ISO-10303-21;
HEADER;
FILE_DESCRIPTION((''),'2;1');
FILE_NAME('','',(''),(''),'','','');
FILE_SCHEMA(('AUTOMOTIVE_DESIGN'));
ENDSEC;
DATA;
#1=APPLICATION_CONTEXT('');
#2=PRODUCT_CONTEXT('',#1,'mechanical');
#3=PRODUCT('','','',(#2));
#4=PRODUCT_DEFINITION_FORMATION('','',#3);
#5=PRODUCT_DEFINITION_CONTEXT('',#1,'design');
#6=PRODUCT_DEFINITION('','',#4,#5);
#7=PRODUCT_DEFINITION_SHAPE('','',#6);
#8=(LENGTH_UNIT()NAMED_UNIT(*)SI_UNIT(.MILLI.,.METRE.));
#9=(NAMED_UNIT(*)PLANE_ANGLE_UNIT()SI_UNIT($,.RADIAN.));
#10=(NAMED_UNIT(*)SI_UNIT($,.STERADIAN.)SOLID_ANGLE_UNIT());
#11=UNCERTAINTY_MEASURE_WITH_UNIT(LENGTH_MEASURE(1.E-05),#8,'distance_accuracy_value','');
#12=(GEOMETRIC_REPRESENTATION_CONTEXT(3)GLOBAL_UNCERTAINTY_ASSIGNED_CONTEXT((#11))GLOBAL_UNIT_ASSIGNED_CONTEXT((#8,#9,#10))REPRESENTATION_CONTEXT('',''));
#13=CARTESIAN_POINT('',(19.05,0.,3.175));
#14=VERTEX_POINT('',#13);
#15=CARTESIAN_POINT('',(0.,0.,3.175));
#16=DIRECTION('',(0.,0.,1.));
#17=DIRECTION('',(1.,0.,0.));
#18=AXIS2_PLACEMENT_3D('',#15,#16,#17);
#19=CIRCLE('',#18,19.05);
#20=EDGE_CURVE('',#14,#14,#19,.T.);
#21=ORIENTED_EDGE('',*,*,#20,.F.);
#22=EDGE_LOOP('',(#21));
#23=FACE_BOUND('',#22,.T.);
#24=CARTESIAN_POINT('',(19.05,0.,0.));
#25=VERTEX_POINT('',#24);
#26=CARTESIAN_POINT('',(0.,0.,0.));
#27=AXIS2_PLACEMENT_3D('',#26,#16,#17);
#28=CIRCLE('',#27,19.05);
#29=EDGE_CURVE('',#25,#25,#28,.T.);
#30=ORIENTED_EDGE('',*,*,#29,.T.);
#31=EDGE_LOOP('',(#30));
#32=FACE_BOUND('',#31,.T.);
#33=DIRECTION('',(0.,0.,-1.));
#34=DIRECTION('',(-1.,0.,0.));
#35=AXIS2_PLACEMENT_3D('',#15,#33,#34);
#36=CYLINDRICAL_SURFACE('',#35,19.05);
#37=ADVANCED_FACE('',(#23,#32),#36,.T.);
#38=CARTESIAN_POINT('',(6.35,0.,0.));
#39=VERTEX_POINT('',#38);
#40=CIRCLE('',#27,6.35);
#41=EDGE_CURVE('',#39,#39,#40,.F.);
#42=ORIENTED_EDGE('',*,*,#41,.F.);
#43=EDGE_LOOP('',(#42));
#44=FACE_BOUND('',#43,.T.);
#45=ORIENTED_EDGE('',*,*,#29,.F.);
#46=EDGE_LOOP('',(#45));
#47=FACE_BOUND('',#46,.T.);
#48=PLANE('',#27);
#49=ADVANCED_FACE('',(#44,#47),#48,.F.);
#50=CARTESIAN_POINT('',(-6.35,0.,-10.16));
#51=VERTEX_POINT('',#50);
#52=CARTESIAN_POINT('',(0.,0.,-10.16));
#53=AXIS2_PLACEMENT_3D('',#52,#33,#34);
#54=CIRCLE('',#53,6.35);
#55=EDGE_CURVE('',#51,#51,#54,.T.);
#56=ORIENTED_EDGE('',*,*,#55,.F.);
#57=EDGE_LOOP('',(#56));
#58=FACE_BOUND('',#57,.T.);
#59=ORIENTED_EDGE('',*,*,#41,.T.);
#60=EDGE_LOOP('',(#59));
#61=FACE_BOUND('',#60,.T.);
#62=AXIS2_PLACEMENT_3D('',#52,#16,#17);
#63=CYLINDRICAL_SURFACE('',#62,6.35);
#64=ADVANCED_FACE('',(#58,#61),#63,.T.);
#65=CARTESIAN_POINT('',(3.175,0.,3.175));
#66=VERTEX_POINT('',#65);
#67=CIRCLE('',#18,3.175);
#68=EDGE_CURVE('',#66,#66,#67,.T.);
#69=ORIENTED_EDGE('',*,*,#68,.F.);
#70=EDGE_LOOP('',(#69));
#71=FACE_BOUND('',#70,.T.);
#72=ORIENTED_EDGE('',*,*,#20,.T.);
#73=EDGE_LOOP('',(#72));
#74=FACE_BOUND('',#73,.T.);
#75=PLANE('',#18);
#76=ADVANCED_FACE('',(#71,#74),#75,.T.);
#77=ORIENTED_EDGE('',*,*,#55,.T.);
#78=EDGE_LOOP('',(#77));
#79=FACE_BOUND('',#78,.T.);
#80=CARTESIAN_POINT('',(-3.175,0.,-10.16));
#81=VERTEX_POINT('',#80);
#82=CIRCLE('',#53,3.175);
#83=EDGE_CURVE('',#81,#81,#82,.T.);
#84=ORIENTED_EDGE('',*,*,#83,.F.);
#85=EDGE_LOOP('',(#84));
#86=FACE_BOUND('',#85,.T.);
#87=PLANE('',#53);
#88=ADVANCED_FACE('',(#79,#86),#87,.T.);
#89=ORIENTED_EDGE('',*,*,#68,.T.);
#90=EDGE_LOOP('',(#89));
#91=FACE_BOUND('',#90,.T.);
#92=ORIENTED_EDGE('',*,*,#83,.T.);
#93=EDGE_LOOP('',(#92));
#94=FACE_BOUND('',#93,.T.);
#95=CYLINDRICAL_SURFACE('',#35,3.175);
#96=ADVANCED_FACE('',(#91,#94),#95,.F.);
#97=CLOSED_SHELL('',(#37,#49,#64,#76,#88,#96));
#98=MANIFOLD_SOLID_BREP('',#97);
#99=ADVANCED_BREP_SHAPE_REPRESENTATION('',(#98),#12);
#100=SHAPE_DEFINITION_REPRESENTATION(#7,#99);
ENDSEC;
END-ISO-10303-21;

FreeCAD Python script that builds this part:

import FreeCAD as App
import Part
import Sketcher
from FreeCAD import Vector
Q = App.Units.Quantity

doc = App.newDocument("Part")
body = doc.addObject("PartDesign::Body", "Body")

sketch1 = doc.addObject("Sketcher::SketchObject", "Sketch")
body.addObject(sketch1)
sketch1.AttachmentSupport = (doc.XY_Plane, [""])
sketch1.MapMode = "FlatFace"
sketch1.addGeometry([
    Part.Circle(Vector(0, 0, 0), Vector(0, 0, 1), 19.1),
    Part.Circle(Vector(0, 0, 0), Vector(0, 0, 1), 3.2),
], False)
sketch1.addConstraint([
    Sketcher.Constraint("Coincident", 0, 3, -1, 1),
    Sketcher.Constraint("Coincident", 1, 3, -1, 1),
    Sketcher.Constraint("Diameter", 0, Q("1.5 in")),
    Sketcher.Constraint("Diameter", 1, Q("0.25 in")),
])
pad1 = doc.addObject("PartDesign::Pad", "Pad")
body.addObject(pad1)
pad1.Profile = sketch1
pad1.Length = Q("0.125 in")

sketch2 = doc.addObject("Sketcher::SketchObject", "Sketch001")
body.addObject(sketch2)
sketch2.AttachmentSupport = (doc.XY_Plane, [""])
sketch2.MapMode = "FlatFace"
sketch2.addGeometry([
    Part.Circle(Vector(0, 0, 0), Vector(0, 0, 1), 6.3),
    Part.Circle(Vector(0, 0, 0), Vector(0, 0, 1), 3.2),
], False)
sketch2.addConstraint([
    Sketcher.Constraint("Coincident", 0, 3, -1, 1),
    Sketcher.Constraint("Coincident", 1, 3, -1, 1),
    Sketcher.Constraint("Diameter", 0, Q("0.5 in")),
    Sketcher.Constraint("Diameter", 1, Q("0.25 in")),
])
pad2 = doc.addObject("PartDesign::Pad", "Pad001")
body.addObject(pad2)
pad2.Profile = sketch2
pad2.Length = Q("0.4 in")
pad2.Reversed = True

doc.recompute()
